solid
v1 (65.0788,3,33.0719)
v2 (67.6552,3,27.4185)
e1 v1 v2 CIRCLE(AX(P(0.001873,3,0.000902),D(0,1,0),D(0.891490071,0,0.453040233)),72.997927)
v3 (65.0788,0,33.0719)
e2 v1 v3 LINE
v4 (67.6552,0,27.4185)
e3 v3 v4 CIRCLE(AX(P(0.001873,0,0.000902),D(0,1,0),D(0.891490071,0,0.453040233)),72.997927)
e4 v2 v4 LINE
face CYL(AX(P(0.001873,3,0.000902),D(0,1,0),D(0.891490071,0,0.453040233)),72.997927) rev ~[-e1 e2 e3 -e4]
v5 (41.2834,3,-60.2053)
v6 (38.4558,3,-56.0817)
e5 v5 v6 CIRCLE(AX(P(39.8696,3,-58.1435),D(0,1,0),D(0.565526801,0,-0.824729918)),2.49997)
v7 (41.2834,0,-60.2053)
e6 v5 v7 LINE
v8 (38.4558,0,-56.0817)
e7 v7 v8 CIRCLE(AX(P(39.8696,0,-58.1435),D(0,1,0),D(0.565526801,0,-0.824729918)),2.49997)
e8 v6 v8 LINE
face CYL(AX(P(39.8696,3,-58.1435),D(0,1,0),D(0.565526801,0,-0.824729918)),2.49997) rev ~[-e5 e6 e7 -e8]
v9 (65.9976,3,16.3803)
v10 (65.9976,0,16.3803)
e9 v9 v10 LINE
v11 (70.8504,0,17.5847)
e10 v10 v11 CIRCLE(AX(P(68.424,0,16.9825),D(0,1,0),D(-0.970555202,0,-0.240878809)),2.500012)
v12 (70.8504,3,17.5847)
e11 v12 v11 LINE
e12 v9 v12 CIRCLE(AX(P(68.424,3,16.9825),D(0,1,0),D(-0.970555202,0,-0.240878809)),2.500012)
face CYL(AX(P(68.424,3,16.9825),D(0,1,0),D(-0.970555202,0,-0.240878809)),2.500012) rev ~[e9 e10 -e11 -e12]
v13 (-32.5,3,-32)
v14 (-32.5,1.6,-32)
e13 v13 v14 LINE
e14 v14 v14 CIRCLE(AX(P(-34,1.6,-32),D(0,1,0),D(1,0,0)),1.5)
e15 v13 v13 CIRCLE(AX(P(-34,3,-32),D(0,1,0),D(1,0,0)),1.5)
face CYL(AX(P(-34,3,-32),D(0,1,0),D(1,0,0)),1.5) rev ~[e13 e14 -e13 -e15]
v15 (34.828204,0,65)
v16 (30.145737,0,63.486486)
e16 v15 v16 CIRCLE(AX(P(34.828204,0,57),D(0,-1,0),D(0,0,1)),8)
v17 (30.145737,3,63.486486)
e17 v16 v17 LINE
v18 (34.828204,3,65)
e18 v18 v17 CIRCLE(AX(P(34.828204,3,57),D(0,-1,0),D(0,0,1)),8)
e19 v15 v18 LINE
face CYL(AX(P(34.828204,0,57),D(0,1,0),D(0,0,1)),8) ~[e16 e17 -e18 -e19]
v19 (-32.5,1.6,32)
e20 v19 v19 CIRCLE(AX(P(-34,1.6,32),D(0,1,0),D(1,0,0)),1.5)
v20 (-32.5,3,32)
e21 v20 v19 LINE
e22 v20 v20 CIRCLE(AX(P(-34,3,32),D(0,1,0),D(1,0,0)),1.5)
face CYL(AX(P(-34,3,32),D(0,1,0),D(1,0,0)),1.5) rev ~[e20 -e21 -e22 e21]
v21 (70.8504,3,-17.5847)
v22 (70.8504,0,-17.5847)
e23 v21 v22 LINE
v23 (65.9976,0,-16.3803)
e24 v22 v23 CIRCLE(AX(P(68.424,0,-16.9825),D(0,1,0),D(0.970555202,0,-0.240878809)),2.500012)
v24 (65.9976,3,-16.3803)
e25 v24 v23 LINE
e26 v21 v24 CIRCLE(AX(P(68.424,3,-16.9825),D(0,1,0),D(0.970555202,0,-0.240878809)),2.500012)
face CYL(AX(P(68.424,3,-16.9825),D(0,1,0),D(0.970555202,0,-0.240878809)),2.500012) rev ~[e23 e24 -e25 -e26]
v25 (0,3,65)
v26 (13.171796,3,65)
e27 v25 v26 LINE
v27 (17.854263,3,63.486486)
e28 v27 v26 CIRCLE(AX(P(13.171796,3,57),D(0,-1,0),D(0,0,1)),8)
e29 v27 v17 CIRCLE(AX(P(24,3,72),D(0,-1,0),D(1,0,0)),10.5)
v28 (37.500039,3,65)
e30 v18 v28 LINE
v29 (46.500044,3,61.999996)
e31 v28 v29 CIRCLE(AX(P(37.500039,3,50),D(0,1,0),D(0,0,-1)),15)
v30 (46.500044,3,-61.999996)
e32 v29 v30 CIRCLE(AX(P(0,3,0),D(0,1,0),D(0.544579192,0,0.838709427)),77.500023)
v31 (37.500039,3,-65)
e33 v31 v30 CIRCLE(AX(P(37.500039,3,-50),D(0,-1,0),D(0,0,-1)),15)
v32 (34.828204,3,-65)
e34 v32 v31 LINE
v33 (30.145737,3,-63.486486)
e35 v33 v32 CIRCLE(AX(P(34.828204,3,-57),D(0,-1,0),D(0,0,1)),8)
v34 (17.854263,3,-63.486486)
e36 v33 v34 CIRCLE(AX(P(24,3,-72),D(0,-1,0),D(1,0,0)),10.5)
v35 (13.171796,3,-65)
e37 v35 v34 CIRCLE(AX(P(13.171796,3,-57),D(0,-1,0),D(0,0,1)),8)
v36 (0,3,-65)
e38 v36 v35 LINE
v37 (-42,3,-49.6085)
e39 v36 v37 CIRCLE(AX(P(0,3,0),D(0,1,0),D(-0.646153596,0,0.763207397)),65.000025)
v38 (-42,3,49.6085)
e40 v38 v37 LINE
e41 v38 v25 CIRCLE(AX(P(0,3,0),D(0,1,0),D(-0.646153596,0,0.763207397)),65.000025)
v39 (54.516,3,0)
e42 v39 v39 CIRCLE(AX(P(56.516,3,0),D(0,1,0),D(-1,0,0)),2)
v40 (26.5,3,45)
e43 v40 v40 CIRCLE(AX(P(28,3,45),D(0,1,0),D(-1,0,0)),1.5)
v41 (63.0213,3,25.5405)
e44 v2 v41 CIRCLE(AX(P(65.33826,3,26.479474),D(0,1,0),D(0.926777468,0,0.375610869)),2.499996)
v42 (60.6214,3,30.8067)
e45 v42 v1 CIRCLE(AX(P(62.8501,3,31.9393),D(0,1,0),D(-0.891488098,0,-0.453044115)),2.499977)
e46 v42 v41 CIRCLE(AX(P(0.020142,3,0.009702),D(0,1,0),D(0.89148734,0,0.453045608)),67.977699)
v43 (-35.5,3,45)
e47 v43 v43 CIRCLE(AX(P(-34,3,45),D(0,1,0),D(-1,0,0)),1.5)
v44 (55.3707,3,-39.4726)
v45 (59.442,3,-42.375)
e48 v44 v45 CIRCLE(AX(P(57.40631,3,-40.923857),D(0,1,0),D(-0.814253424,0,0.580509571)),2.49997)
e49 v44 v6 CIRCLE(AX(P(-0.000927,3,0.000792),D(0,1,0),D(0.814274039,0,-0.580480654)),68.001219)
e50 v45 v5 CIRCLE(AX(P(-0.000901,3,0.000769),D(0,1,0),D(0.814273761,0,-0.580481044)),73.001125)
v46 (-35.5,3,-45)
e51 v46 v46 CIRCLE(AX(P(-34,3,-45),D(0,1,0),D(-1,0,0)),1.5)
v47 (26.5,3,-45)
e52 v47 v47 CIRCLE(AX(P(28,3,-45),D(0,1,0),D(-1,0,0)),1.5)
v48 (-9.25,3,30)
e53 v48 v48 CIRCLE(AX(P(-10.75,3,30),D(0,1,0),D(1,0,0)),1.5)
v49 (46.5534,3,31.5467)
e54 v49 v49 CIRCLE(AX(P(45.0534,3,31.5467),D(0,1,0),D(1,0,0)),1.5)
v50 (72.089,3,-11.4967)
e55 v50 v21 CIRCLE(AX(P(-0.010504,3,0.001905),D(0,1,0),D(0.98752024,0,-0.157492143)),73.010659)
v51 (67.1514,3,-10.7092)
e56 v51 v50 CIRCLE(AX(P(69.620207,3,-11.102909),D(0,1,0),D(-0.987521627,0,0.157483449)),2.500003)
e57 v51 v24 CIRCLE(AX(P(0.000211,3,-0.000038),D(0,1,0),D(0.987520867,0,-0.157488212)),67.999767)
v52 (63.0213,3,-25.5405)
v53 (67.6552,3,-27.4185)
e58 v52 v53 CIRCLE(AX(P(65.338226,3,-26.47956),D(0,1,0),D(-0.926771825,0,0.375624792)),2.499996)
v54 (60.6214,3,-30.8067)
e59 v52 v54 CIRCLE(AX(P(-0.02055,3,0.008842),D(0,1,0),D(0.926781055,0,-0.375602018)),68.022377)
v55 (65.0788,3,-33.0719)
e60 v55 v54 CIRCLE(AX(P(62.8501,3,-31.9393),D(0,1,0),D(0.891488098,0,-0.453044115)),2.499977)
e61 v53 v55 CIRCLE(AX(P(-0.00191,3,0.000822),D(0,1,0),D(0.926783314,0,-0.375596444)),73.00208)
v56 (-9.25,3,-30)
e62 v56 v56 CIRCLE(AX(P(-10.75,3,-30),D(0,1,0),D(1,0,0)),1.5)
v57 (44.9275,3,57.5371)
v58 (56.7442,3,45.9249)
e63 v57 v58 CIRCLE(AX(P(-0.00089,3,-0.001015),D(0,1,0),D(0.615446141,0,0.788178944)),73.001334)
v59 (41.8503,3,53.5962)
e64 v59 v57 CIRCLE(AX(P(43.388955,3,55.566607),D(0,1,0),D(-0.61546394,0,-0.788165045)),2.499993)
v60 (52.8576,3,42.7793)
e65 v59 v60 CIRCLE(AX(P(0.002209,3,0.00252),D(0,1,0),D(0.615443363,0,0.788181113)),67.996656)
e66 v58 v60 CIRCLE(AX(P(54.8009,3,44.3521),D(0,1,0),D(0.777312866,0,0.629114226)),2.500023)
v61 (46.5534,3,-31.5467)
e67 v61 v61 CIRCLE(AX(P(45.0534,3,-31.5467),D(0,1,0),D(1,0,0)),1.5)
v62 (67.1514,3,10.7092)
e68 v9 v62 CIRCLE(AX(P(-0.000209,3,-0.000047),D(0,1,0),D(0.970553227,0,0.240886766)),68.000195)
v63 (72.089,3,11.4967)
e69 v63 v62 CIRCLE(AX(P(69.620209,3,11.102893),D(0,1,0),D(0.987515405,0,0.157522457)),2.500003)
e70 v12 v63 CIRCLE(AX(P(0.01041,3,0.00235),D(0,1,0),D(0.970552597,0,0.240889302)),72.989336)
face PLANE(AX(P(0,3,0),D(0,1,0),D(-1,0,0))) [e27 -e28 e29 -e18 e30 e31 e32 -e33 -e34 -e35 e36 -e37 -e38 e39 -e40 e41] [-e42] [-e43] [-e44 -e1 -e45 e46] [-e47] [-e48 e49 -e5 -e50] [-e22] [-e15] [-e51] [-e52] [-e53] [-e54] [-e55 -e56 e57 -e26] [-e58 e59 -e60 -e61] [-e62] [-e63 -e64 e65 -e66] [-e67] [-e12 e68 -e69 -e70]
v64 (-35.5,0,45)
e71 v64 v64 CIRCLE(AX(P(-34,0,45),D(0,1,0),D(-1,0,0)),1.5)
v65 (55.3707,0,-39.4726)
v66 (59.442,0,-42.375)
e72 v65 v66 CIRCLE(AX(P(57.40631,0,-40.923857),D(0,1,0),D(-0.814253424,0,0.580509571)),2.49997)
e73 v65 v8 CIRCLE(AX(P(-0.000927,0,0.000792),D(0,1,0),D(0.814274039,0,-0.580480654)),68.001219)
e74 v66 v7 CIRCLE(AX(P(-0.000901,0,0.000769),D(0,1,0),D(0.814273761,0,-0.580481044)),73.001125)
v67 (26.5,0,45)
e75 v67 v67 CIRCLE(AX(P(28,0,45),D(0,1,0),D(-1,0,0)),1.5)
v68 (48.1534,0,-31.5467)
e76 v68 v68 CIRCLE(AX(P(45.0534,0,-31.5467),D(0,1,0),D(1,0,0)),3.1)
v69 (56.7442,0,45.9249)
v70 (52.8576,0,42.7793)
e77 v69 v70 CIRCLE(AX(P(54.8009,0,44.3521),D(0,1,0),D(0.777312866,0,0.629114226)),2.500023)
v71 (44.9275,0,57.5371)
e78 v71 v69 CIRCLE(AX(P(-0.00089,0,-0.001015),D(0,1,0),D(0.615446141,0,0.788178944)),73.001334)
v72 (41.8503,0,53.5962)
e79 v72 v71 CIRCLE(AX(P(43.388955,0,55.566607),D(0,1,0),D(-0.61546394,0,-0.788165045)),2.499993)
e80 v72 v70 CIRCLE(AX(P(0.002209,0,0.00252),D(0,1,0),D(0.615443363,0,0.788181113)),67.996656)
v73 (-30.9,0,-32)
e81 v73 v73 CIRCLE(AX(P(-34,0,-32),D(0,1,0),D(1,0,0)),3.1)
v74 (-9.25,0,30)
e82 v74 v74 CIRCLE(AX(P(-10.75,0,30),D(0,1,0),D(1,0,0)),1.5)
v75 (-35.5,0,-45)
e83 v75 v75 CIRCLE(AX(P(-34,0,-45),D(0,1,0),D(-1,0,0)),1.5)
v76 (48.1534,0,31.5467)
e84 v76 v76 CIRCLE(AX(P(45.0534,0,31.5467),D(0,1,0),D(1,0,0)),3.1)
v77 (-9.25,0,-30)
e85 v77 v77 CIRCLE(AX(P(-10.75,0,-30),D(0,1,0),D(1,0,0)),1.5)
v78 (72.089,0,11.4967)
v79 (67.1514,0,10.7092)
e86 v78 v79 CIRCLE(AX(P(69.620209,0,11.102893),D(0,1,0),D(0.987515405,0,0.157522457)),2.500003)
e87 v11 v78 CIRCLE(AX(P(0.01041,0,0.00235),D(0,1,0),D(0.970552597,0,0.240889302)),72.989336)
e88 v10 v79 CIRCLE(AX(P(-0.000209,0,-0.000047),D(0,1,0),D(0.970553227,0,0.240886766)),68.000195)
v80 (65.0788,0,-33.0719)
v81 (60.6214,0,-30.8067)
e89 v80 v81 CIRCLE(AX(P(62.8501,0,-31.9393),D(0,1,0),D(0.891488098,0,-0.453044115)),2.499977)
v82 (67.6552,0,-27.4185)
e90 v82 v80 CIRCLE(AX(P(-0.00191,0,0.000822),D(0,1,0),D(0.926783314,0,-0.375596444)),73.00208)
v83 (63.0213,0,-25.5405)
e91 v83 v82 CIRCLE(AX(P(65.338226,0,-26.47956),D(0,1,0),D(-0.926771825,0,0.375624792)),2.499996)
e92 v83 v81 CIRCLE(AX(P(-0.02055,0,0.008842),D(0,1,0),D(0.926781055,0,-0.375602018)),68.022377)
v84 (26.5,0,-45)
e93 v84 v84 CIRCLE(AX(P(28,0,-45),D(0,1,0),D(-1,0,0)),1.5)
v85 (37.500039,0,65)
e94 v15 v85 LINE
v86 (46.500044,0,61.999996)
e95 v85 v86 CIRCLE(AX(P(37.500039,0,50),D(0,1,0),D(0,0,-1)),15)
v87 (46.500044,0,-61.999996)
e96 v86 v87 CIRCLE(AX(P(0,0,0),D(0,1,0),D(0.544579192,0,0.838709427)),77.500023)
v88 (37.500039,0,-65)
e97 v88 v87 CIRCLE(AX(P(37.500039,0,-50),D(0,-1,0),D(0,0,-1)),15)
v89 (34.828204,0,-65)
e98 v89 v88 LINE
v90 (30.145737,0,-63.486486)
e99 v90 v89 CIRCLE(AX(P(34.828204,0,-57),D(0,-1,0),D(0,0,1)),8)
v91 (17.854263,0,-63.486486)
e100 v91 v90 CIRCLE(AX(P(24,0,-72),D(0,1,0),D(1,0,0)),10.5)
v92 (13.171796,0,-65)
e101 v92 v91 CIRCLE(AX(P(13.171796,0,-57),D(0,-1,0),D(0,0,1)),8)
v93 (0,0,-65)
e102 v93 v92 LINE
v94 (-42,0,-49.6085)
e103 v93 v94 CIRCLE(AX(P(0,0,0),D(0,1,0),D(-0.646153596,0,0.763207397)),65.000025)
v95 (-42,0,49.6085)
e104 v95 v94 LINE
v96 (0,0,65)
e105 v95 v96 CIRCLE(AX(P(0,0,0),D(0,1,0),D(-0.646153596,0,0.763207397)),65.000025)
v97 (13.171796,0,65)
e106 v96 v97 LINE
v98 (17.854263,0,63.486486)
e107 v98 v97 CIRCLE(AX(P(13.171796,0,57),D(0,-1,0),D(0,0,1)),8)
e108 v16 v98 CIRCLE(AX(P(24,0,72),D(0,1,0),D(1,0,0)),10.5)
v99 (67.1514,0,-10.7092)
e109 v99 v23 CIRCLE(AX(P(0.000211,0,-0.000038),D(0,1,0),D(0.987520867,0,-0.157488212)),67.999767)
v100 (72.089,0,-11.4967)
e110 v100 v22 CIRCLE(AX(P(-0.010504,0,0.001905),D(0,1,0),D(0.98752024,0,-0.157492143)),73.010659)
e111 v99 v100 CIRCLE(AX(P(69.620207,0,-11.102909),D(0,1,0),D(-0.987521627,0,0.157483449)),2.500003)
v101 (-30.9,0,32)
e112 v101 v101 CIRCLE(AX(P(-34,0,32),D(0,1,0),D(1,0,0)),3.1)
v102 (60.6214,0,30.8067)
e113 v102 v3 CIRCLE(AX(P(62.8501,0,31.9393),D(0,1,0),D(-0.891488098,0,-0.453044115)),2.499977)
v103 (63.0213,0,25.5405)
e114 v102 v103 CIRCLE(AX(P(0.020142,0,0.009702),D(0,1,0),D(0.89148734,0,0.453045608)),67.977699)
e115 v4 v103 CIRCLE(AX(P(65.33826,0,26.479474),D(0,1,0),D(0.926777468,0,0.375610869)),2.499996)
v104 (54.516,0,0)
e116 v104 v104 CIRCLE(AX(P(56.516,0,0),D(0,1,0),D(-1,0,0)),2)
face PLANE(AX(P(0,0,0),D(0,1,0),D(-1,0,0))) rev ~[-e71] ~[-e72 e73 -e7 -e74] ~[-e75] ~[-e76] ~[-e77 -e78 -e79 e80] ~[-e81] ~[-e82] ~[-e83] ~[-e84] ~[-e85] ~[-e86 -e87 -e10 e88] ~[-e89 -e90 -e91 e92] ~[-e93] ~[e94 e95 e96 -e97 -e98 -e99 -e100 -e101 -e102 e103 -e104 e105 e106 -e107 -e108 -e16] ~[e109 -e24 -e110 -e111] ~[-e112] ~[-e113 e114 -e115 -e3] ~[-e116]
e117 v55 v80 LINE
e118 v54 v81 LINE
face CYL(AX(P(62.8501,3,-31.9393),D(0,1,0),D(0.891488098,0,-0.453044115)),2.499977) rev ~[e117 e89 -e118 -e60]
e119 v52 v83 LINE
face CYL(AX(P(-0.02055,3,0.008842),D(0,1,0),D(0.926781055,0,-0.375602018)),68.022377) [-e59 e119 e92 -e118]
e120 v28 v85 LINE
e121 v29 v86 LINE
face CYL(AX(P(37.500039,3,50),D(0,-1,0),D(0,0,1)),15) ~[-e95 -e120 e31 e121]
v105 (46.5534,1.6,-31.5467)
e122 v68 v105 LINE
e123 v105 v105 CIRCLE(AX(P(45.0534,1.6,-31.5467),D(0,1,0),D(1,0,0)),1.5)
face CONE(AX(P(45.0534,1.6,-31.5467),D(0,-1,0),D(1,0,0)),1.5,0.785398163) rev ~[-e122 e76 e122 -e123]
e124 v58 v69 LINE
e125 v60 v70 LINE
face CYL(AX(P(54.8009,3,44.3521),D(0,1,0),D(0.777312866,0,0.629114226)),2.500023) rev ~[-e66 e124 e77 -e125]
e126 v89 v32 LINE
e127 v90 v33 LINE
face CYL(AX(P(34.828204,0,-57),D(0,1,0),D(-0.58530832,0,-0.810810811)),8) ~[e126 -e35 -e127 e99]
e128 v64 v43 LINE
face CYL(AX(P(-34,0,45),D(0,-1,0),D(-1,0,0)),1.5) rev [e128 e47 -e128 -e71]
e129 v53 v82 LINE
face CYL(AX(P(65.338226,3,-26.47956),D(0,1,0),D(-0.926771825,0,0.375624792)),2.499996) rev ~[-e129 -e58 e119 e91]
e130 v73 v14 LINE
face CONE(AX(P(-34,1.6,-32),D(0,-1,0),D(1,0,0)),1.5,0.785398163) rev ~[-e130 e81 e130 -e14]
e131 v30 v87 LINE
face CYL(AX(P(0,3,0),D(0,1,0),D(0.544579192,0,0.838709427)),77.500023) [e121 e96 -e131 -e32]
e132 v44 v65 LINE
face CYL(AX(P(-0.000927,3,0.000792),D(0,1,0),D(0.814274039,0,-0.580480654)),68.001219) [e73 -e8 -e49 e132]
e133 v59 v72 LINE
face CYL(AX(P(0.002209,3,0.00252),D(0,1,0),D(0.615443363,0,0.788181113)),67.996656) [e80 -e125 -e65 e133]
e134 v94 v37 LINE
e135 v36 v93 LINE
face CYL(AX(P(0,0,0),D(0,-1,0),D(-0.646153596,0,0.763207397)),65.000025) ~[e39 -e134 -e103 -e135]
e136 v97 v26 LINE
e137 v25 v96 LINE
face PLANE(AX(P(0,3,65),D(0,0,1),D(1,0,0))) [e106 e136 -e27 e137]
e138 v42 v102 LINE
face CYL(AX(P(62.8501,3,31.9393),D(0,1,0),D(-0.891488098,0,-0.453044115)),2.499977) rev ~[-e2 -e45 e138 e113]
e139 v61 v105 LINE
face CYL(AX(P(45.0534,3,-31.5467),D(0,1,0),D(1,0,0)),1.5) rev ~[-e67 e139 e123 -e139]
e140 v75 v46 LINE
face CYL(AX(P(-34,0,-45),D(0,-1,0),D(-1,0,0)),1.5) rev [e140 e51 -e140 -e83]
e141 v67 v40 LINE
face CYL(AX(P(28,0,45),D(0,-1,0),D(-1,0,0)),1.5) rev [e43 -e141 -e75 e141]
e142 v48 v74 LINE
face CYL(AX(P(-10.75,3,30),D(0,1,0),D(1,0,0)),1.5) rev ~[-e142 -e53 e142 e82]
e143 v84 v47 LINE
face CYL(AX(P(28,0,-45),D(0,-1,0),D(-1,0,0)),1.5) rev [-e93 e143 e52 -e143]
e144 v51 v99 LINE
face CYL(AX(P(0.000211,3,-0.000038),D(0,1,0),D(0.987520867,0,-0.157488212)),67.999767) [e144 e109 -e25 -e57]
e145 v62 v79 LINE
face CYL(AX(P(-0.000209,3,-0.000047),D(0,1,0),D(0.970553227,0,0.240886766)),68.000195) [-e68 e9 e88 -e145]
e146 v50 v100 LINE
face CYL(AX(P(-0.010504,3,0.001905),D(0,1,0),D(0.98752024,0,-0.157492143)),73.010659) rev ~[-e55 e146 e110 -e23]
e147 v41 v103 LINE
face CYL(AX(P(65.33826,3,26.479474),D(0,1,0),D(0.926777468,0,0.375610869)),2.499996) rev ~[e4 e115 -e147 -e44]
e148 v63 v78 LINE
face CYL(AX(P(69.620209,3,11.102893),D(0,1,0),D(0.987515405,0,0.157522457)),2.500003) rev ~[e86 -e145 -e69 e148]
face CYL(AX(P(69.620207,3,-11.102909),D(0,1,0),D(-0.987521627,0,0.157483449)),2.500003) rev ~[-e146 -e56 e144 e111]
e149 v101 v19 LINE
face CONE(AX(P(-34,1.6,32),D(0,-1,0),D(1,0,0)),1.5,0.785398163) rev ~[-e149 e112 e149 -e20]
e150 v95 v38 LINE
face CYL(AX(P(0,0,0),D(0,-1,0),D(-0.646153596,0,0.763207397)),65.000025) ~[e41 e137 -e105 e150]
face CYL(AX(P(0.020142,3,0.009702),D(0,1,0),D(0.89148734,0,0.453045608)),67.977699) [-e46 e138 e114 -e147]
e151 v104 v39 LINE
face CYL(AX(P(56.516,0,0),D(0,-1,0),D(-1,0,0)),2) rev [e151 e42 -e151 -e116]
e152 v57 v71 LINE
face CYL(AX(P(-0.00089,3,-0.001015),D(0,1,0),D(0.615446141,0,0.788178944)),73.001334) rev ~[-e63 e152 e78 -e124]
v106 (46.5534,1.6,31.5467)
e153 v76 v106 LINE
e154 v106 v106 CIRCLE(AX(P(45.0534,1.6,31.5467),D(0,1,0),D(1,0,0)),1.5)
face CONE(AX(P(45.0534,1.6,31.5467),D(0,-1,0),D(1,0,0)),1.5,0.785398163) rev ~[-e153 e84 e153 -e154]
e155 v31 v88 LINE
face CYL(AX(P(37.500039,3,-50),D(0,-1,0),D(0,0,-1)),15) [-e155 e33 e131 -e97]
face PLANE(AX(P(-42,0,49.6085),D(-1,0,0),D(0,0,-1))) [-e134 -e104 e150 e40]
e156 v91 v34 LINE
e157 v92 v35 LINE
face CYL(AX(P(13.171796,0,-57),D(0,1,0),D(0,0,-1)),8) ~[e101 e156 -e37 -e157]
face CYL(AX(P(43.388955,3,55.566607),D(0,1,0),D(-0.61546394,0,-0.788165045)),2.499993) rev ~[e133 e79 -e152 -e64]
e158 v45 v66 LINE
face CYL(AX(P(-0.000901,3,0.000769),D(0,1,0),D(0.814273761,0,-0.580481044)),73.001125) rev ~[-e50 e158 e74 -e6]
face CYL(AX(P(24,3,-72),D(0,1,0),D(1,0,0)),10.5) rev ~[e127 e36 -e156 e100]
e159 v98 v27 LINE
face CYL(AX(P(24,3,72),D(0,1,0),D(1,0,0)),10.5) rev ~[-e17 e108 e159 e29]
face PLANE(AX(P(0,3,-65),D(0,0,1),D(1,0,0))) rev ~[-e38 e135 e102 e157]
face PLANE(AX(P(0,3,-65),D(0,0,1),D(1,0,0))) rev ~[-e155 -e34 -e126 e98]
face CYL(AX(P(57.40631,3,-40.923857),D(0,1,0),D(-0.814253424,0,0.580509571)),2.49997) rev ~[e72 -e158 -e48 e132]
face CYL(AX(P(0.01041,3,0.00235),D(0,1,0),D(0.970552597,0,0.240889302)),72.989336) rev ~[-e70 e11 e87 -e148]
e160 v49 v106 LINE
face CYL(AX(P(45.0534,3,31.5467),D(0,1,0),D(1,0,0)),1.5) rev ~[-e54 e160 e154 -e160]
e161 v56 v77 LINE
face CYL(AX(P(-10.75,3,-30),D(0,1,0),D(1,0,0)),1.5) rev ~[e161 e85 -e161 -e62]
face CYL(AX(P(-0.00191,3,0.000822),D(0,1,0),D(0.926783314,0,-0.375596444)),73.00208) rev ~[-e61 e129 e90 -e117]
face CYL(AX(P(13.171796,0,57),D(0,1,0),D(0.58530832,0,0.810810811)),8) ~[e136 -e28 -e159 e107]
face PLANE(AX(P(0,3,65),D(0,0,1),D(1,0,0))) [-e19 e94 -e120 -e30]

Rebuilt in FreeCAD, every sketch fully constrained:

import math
import FreeCAD as App
import Part
import Sketcher
Q = App.Units.Quantity


def edges_at(feature, points):
    """Names of the edges that pass closest to the given points."""
    edges = feature.Shape.Edges
    near = lambda p: min(range(len(edges)), key=lambda i: edges[i].distToShape(Part.Vertex(*p))[0])
    return sorted({f"Edge{near(p) + 1}" for p in points})

doc = App.newDocument("Part")
params = doc.addObject("Spreadsheet::Sheet", "Params")
for row, (alias, value) in enumerate([
    ("sketch1_diameter", "3 mm"),
    ("sketch1_diameter2", "4 mm"),
    ("sketch1_radius", "65 mm"),
    ("pad1_length", "3 mm"),
    ("sketch2_diameter", "3 mm"),
    ("pocket1_length", "10 mm"),
    ("chamfer_size", "1.6 mm"),
    ("sketch3_diameter", "3 mm"),
    ("pocket2_length", "10 mm"),
    ("sketch4_radius", "65 mm"),
    ("sketch4_radius2", "77.5 mm"),
    ("sketch4_radius3", "2.5 mm"),
    ("sketch4_radius4", "68 mm"),
    ("pad2_length", "3 mm"),
    ("fillet_radius", "15 mm"),
    ("sketch5_diameter", "21 mm"),
    ("pocket3_length", "3 mm"),
    ("fillet2_radius", "8 mm"),
], start=1):
    params.set(f"A{row}", alias)
    params.set(f"B{row}", "=" + value)
    params.setAlias(f"B{row}", alias)

body = doc.addObject("PartDesign::Body", "Body")

# Sketch on XZ plane
sketch1 = body.newObject("Sketcher::SketchObject", "Sketch")
sketch1.AttachmentSupport = (doc.getObject("XZ_Plane"), [""])
sketch1.MapMode = "FlatFace"
sketch1.addGeometry(Part.LineSegment(App.Vector(-42, -49.6, 0), App.Vector(-42, 49.6, 0)), False)
sketch1.addGeometry(Part.ArcOfCircle(Part.Circle(App.Vector(0, 0, 0), App.Vector(0, 0, 1), 65), math.radians(-130), math.radians(130)), False)
sketch1.addGeometry(Part.Circle(App.Vector(28, -45, 0), App.Vector(0, 0, 1), 1.5), False)
sketch1.addGeometry(Part.Circle(App.Vector(-34, -45, 0), App.Vector(0, 0, 1), 1.5), False)
sketch1.addGeometry(Part.Circle(App.Vector(56.5, 0, 0), App.Vector(0, 0, 1), 2), False)
sketch1.addGeometry(Part.Circle(App.Vector(28, 45, 0), App.Vector(0, 0, 1), 1.5), False)
sketch1.addGeometry(Part.Circle(App.Vector(-34, 45, 0), App.Vector(0, 0, 1), 1.5), False)
sketch1.addConstraint(Sketcher.Constraint("Coincident", 0, 1, 1, 1))
sketch1.addConstraint(Sketcher.Constraint("Coincident", 1, 2, 0, 2))
sketch1.addConstraint(Sketcher.Constraint("Vertical", 0))
sketch1.addConstraint(Sketcher.Constraint("Coincident", 1, 3, -1, 1))
sketch1.addConstraint(Sketcher.Constraint("Equal", 2, 3))
sketch1.addConstraint(Sketcher.Constraint("Equal", 3, 5))
sketch1.addConstraint(Sketcher.Constraint("Equal", 5, 6))
sketch1.addConstraint(Sketcher.Constraint("Symmetric", 2, 3, 5, 3, -1))
sketch1.addConstraint(Sketcher.Constraint("Symmetric", 3, 3, 6, 3, -1))
sketch1.addConstraint(Sketcher.Constraint("PointOnObject", 4, 3, -1))
sketch1.addConstraint(Sketcher.Constraint("Horizontal", 2, 3, 3, 3))
sketch1.addConstraint(Sketcher.Constraint("Diameter", 2, Q("3 mm")))
sketch1.addConstraint(Sketcher.Constraint("Diameter", 4, Q("4 mm")))
sketch1.addConstraint(Sketcher.Constraint("Radius", 1, Q("65 mm")))
sketch1.addConstraint(Sketcher.Constraint("DistanceY", 2, 3, -1, 1, Q("45 mm")))
sketch1.addConstraint(Sketcher.Constraint("DistanceX", 0, 1, -1, 1, Q("42 mm")))
sketch1.addConstraint(Sketcher.Constraint("DistanceX", 0, 1, 3, 3, Q("8 mm")))
sketch1.addConstraint(Sketcher.Constraint("DistanceX", 0, 1, 2, 3, Q("70 mm")))
sketch1.addConstraint(Sketcher.Constraint("DistanceX", -1, 1, 4, 3, Q("56.516 mm")))
sketch1.setExpression("Constraints[11]", "Params.sketch1_diameter")
sketch1.setExpression("Constraints[12]", "Params.sketch1_diameter2")
sketch1.setExpression("Constraints[13]", "Params.sketch1_radius")
pad1 = body.newObject("PartDesign::Pad", "Pad")
pad1.Profile = sketch1
pad1.setExpression("Length", "Params.pad1_length")
pad1.Reversed = True

# Sketch on XZ plane
sketch2 = body.newObject("Sketcher::SketchObject", "Sketch001")
sketch2.AttachmentSupport = (doc.getObject("XZ_Plane"), [""])
sketch2.MapMode = "FlatFace"
sketch2.AttachmentOffset = App.Placement(App.Vector(0, 0, -3), App.Rotation())
sketch2.addGeometry(Part.Circle(App.Vector(45.1, 31.5, 0), App.Vector(0, 0, 1), 1.5), False)
sketch2.addGeometry(Part.Circle(App.Vector(45.1, -31.5, 0), App.Vector(0, 0, 1), 1.5), False)
sketch2.addGeometry(Part.Circle(App.Vector(-34, 32, 0), App.Vector(0, 0, 1), 1.5), False)
sketch2.addGeometry(Part.Circle(App.Vector(-34, -32, 0), App.Vector(0, 0, 1), 1.5), False)
sketch2.addConstraint(Sketcher.Constraint("Equal", 0, 1))
sketch2.addConstraint(Sketcher.Constraint("Equal", 1, 2))
sketch2.addConstraint(Sketcher.Constraint("Equal", 2, 3))
sketch2.addConstraint(Sketcher.Constraint("Symmetric", 0, 3, 1, 3, -1))
sketch2.addConstraint(Sketcher.Constraint("Symmetric", 2, 3, 3, 3, -1))
sketch2.addConstraint(Sketcher.Constraint("Diameter", 0, Q("3 mm")))
sketch2.addConstraint(Sketcher.Constraint("DistanceY", -1, 1, 2, 3, Q("32 mm")))
sketch2.addConstraint(Sketcher.Constraint("DistanceX", 2, 3, -1, 1, Q("34 mm")))
sketch2.addConstraint(Sketcher.Constraint("DistanceX", -1, 1, 0, 3, Q("45.0534 mm")))
sketch2.addConstraint(Sketcher.Constraint("DistanceY", -1, 1, 0, 3, Q("31.5467 mm")))
sketch2.setExpression("Constraints[5]", "Params.sketch2_diameter")
pocket1 = body.newObject("PartDesign::Pocket", "Pocket")
pocket1.Profile = sketch2
pocket1.setExpression("Length", "Params.pocket1_length")
pocket1.Reversed = True
doc.recompute()

chamfer = body.newObject("PartDesign::Chamfer", "Chamfer")
chamfer.Base = (pocket1, edges_at(pocket1, [
    (43.553, 0, 31.547),
    (43.553, 0, -31.547),
    (-35.5, 0, -32),
    (-35.5, 0, 32),
]))
chamfer.setExpression("Size", "Params.chamfer_size")

# Sketch on XZ plane
sketch3 = body.newObject("Sketcher::SketchObject", "Sketch002")
sketch3.AttachmentSupport = (doc.getObject("XZ_Plane"), [""])
sketch3.MapMode = "FlatFace"
sketch3.AttachmentOffset = App.Placement(App.Vector(0, 0, -3), App.Rotation())
sketch3.addGeometry(Part.Circle(App.Vector(-10.8, 30, 0), App.Vector(0, 0, 1), 1.5), False)
sketch3.addGeometry(Part.Circle(App.Vector(-10.8, -30, 0), App.Vector(0, 0, 1), 1.5), False)
sketch3.addConstraint(Sketcher.Constraint("Equal", 0, 1))
sketch3.addConstraint(Sketcher.Constraint("Symmetric", 0, 3, 1, 3, -1))
sketch3.addConstraint(Sketcher.Constraint("Diameter", 0, Q("3 mm")))
sketch3.addConstraint(Sketcher.Constraint("DistanceY", -1, 1, 0, 3, Q("30 mm")))
sketch3.addConstraint(Sketcher.Constraint("DistanceX", 0, 3, -1, 1, Q("10.75 mm")))
sketch3.setExpression("Constraints[2]", "Params.sketch3_diameter")
pocket2 = body.newObject("PartDesign::Pocket", "Pocket001")
pocket2.Profile = sketch3
pocket2.setExpression("Length", "Params.pocket2_length")
pocket2.Reversed = True

# Sketch on XZ plane
sketch4 = body.newObject("Sketcher::SketchObject", "Sketch003")
sketch4.AttachmentSupport = (doc.getObject("XZ_Plane"), [""])
sketch4.MapMode = "FlatFace"
sketch4.AttachmentOffset = App.Placement(App.Vector(0, 0, -3), App.Rotation())
sketch4.addGeometry(Part.LineSegment(App.Vector(0, 65, 0), App.Vector(42.2049, 65, 0)), False)
sketch4.addGeometry(Part.ArcOfCircle(Part.Circle(App.Vector(0, 0, 0), App.Vector(0, 0, 1), 77.500023), math.radians(-57.004088), math.radians(57.004088)), False)
sketch4.addGeometry(Part.LineSegment(App.Vector(42.2049, -65, 0), App.Vector(0, -65, 0)), False)
sketch4.addGeometry(Part.ArcOfCircle(Part.Circle(App.Vector(0, 0, 0), App.Vector(0, 0, 1), 65.000025), math.radians(-90), math.radians(90)), False)
sketch4.addGeometry(Part.ArcOfCircle(Part.Circle(App.Vector(-0.00089, -0.001015, 0), App.Vector(0, 0, 1), 73.001334), math.radians(38.984536), math.radians(52.015655)), False)
sketch4.addGeometry(Part.ArcOfCircle(Part.Circle(App.Vector(43.3889, 55.5666, 0), App.Vector(0, 0, 1), 2.499953), math.radians(52.016675), math.radians(232.015264)), False)
sketch4.addGeometry(Part.ArcOfCircle(Part.Circle(App.Vector(0.002209, 0.00252, 0), App.Vector(0, 0, 1), 67.996656), math.radians(38.983844), math.radians(52.015857)), False)
sketch4.addGeometry(Part.ArcOfCircle(Part.Circle(App.Vector(54.8009, 44.3521, 0), App.Vector(0, 0, 1), 2.500023), math.radians(-141.015198), math.radians(38.984802)), False)
sketch4.addGeometry(Part.ArcOfCircle(Part.Circle(App.Vector(0.001873, 0.000902, 0), App.Vector(0, 0, 1), 72.997927), math.radians(22.061043), math.radians(26.93891)), False)
sketch4.addGeometry(Part.ArcOfCircle(Part.Circle(App.Vector(62.8501, 31.9393, 0), App.Vector(0, 0, 1), 2.499977), math.radians(26.93916), math.radians(206.93916)), False)
sketch4.addGeometry(Part.ArcOfCircle(Part.Circle(App.Vector(0.020142, 0.009702, 0), App.Vector(0, 0, 1), 67.977699), math.radians(22.059923), math.radians(26.939256)), False)
sketch4.addGeometry(Part.ArcOfCircle(Part.Circle(App.Vector(65.3382, 26.4795, 0), App.Vector(0, 0, 1), 2.500042), math.radians(-157.938128), math.radians(22.061011)), False)
sketch4.addGeometry(Part.ArcOfCircle(Part.Circle(App.Vector(0.01041, 0.00235, 0), App.Vector(0, 0, 1), 72.989336), math.radians(9.060648), math.radians(13.939034)), False)
sketch4.addGeometry(Part.ArcOfCircle(Part.Circle(App.Vector(68.424, 16.9825, 0), App.Vector(0, 0, 1), 2.500012), math.radians(13.938414), math.radians(193.938414)), False)
sketch4.addGeometry(Part.ArcOfCircle(Part.Circle(App.Vector(0, 0, 0), App.Vector(0, 0, 1), 68.000051), math.radians(9.061137), math.radians(13.938888)), False)
sketch4.addGeometry(Part.ArcOfCircle(Part.Circle(App.Vector(69.6202, 11.1029, 0), App.Vector(0, 0, 1), 2.50001), math.radians(-170.939324), math.radians(9.062939)), False)
sketch4.addGeometry(Part.ArcOfCircle(Part.Circle(App.Vector(-0.010504, 0.001905, 0), App.Vector(0, 0, 1), 73.010659), math.radians(-13.938321), math.radians(-9.061361)), False)
sketch4.addGeometry(Part.ArcOfCircle(Part.Circle(App.Vector(69.6202, -11.1029, 0), App.Vector(0, 0, 1), 2.499995), math.radians(-9.062939), math.radians(170.939324)), False)
sketch4.addGeometry(Part.ArcOfCircle(Part.Circle(App.Vector(0, 0, 0), App.Vector(0, 0, 1), 67.999981), math.radians(-13.938888), math.radians(-9.061137)), False)
sketch4.addGeometry(Part.ArcOfCircle(Part.Circle(App.Vector(68.424, -16.9825, 0), App.Vector(0, 0, 1), 2.500012), math.radians(166.061586), math.radians(346.061586)), False)
sketch4.addGeometry(Part.ArcOfCircle(Part.Circle(App.Vector(-0.00191, 0.000822, 0), App.Vector(0, 0, 1), 73.00208), math.radians(-26.938771), math.radians(-22.061182)), False)
sketch4.addGeometry(Part.ArcOfCircle(Part.Circle(App.Vector(65.3382, -26.4795, 0), App.Vector(0, 0, 1), 2.499949), math.radians(-22.061011), math.radians(157.938128)), False)
sketch4.addGeometry(Part.ArcOfCircle(Part.Circle(App.Vector(-0.02055, 0.008842, 0), App.Vector(0, 0, 1), 68.022377), math.radians(-26.937652), math.radians(-22.061526)), False)
sketch4.addGeometry(Part.ArcOfCircle(Part.Circle(App.Vector(62.8501, -31.9393, 0), App.Vector(0, 0, 1), 2.499977), math.radians(153.06084), math.radians(333.06084)), False)
sketch4.addGeometry(Part.ArcOfCircle(Part.Circle(App.Vector(-0.000901, 0.000769, 0), App.Vector(0, 0, 1), 73.001125), math.radians(-55.560921), math.radians(-35.484384)), False)
sketch4.addGeometry(Part.ArcOfCircle(Part.Circle(App.Vector(57.4063, -40.9238, 0), App.Vector(0, 0, 1), 2.49993), math.radians(-35.484128), math.radians(144.514542)), False)
sketch4.addGeometry(Part.ArcOfCircle(Part.Circle(App.Vector(-0.000927, 0.000792, 0), App.Vector(0, 0, 1), 68.001219), math.radians(-55.560899), math.radians(-35.484356)), False)
sketch4.addGeometry(Part.ArcOfCircle(Part.Circle(App.Vector(39.8696, -58.1435, 0), App.Vector(0, 0, 1), 2.49997), math.radians(124.438881), math.radians(304.438881)), False)
sketch4.addConstraint(Sketcher.Constraint("Coincident", 0, 2, 1, 2))
sketch4.addConstraint(Sketcher.Constraint("Coincident", 1, 1, 2, 1))
sketch4.addConstraint(Sketcher.Constraint("Tangent", 2, 2, 3, 1))
sketch4.addConstraint(Sketcher.Constraint("Tangent", 3, 2, 0, 1))
sketch4.addConstraint(Sketcher.Constraint("Tangent", 4, 2, 5, 1))
sketch4.addConstraint(Sketcher.Constraint("Tangent", 5, 2, 6, 2))
sketch4.addConstraint(Sketcher.Constraint("Tangent", 6, 1, 7, 1))
sketch4.addConstraint(Sketcher.Constraint("Tangent", 7, 2, 4, 1))
sketch4.addConstraint(Sketcher.Constraint("Tangent", 8, 2, 9, 1))
sketch4.addConstraint(Sketcher.Constraint("Tangent", 9, 2, 10, 2))
sketch4.addConstraint(Sketcher.Constraint("Tangent", 10, 1, 11, 1))
sketch4.addConstraint(Sketcher.Constraint("Tangent", 11, 2, 8, 1))
sketch4.addConstraint(Sketcher.Constraint("Tangent", 12, 2, 13, 1))
sketch4.addConstraint(Sketcher.Constraint("Tangent", 13, 2, 14, 2))
sketch4.addConstraint(Sketcher.Constraint("Tangent", 14, 1, 15, 1))
sketch4.addConstraint(Sketcher.Constraint("Tangent", 15, 2, 12, 1))
sketch4.addConstraint(Sketcher.Constraint("Tangent", 16, 2, 17, 1))
sketch4.addConstraint(Sketcher.Constraint("Tangent", 17, 2, 18, 2))
sketch4.addConstraint(Sketcher.Constraint("Tangent", 18, 1, 19, 1))
sketch4.addConstraint(Sketcher.Constraint("Tangent", 19, 2, 16, 1))
sketch4.addConstraint(Sketcher.Constraint("Tangent", 20, 2, 21, 1))
sketch4.addConstraint(Sketcher.Constraint("Tangent", 21, 2, 22, 2))
sketch4.addConstraint(Sketcher.Constraint("Tangent", 22, 1, 23, 1))
sketch4.addConstraint(Sketcher.Constraint("Tangent", 23, 2, 20, 1))
sketch4.addConstraint(Sketcher.Constraint("Tangent", 24, 2, 25, 1))
sketch4.addConstraint(Sketcher.Constraint("Tangent", 25, 2, 26, 2))
sketch4.addConstraint(Sketcher.Constraint("Tangent", 26, 1, 27, 1))
sketch4.addConstraint(Sketcher.Constraint("Tangent", 27, 2, 24, 1))
sketch4.addConstraint(Sketcher.Constraint("Horizontal", 0))
sketch4.addConstraint(Sketcher.Constraint("Horizontal", 2))
sketch4.addConstraint(Sketcher.Constraint("Coincident", 1, 3, -1, 1))
sketch4.addConstraint(Sketcher.Constraint("Coincident", 3, 3, -1, 1))
sketch4.addConstraint(Sketcher.Constraint("Coincident", 14, 3, -1, 1))
sketch4.addConstraint(Sketcher.Constraint("Coincident", 18, 3, -1, 1))
sketch4.addConstraint(Sketcher.Constraint("Coincident", 26, 3, 24, 3))
sketch4.addConstraint(Sketcher.Constraint("Equal", 5, 7))
sketch4.addConstraint(Sketcher.Constraint("Equal", 7, 9))
sketch4.addConstraint(Sketcher.Constraint("Equal", 9, 11))
sketch4.addConstraint(Sketcher.Constraint("Equal", 11, 13))
sketch4.addConstraint(Sketcher.Constraint("Equal", 13, 15))
sketch4.addConstraint(Sketcher.Constraint("Equal", 15, 17))
sketch4.addConstraint(Sketcher.Constraint("Equal", 14, 18))
sketch4.addConstraint(Sketcher.Constraint("Equal", 17, 19))
sketch4.addConstraint(Sketcher.Constraint("Equal", 19, 21))
sketch4.addConstraint(Sketcher.Constraint("Equal", 21, 23))
sketch4.addConstraint(Sketcher.Constraint("Equal", 23, 25))
sketch4.addConstraint(Sketcher.Constraint("Symmetric", 8, 3, 20, 3, -2))
sketch4.addConstraint(Sketcher.Constraint("Symmetric", 11, 3, 21, 3, -1))
sketch4.addConstraint(Sketcher.Constraint("Symmetric", 9, 3, 23, 3, -1))
sketch4.addConstraint(Sketcher.Constraint("Symmetric", 4, 3, 24, 3, -1))
sketch4.addConstraint(Sketcher.Constraint("Horizontal", 6, 3, 12, 3))
sketch4.addConstraint(Sketcher.Constraint("Horizontal", 20, 3, 24, 3))
sketch4.addConstraint(Sketcher.Constraint("Vertical", 15, 3, 17, 3))
sketch4.addConstraint(Sketcher.Constraint("Vertical", 13, 3, 19, 3))
sketch4.addConstraint(Sketcher.Constraint("Radius", 3, Q("65 mm")))
sketch4.addConstraint(Sketcher.Constraint("Radius", 1, Q("77.5 mm")))
sketch4.addConstraint(Sketcher.Constraint("Radius", 5, Q("2.5 mm")))
sketch4.addConstraint(Sketcher.Constraint("Radius", 14, Q("68 mm")))
sketch4.addConstraint(Sketcher.Constraint("Radius", 8, Q("72.998 mm")))
sketch4.addConstraint(Sketcher.Constraint("Radius", 20, Q("73.002 mm")))
sketch4.addConstraint(Sketcher.Constraint("Radius", 4, Q("73.0013 mm")))
sketch4.addConstraint(Sketcher.Constraint("Radius", 6, Q("67.9967 mm")))
sketch4.addConstraint(Sketcher.Constraint("Radius", 10, Q("67.9777 mm")))
sketch4.addConstraint(Sketcher.Constraint("Radius", 16, Q("73.0107 mm")))
sketch4.addConstraint(Sketcher.Constraint("Radius", 22, Q("68.0224 mm")))
sketch4.addConstraint(Sketcher.Constraint("Radius", 24, Q("73.0011 mm")))
sketch4.addConstraint(Sketcher.Constraint("DistanceX", 9, 2, 10, 1, Q("2.4 mm")))
sketch4.addConstraint(Sketcher.Constraint("DistanceX", -1, 1, 9, 3, Q("62.85 mm")))
sketch4.addConstraint(Sketcher.Constraint("DistanceX", 9, 3, 15, 3, Q("6.77 mm")))
sketch4.addConstraint(Sketcher.Constraint("DistanceY", 9, 3, 6, 1, Q("10.84 mm")))
sketch4.addConstraint(Sketcher.Constraint("DistanceX", 4, 2, 6, 1, Q("7.93 mm")))
sketch4.addConstraint(Sketcher.Constraint("DistanceX", 4, 3, -1, 1, Q("0.001 mm")))
sketch4.addConstraint(Sketcher.Constraint("DistanceX", -1, 1, 13, 3, Q("68.424 mm")))
sketch4.addConstraint(Sketcher.Constraint("DistanceX", -1, 1, 24, 2, Q("59.442 mm")))
sketch4.addConstraint(Sketcher.Constraint("DistanceY", 27, 3, 21, 3, Q("31.664 mm")))
sketch4.setExpression("Constraints[54]", "Params.sketch4_radius")
sketch4.setExpression("Constraints[55]", "Params.sketch4_radius2")
sketch4.setExpression("Constraints[56]", "Params.sketch4_radius3")
sketch4.setExpression("Constraints[57]", "Params.sketch4_radius4")
pad2 = body.newObject("PartDesign::Pad", "Pad001")
pad2.Profile = sketch4
pad2.setExpression("Length", "Params.pad2_length")
doc.recompute()

fillet = body.newObject("PartDesign::Fillet", "Fillet")
fillet.Base = (pad2, edges_at(pad2, [(42.205, 1.5, 65), (42.205, 1.5, -65)]))
fillet.setExpression("Radius", "Params.fillet_radius")

# Sketch on XZ plane
sketch5 = body.newObject("Sketcher::SketchObject", "Sketch004")
sketch5.AttachmentSupport = (doc.getObject("XZ_Plane"), [""])
sketch5.MapMode = "FlatFace"
sketch5.AttachmentOffset = App.Placement(App.Vector(0, 0, -3), App.Rotation())
sketch5.addGeometry(Part.Circle(App.Vector(24, -72, 0), App.Vector(0, 0, 1), 10), False)
sketch5.addGeometry(Part.Circle(App.Vector(24, 72, 0), App.Vector(0, 0, 1), 10), False)
sketch5.addConstraint(Sketcher.Constraint("Equal", 0, 1))
sketch5.addConstraint(Sketcher.Constraint("Symmetric", 0, 3, 1, 3, -1))
sketch5.addConstraint(Sketcher.Constraint("Diameter", 0, Q("21 mm")))
sketch5.addConstraint(Sketcher.Constraint("DistanceY", 0, 3, -1, 1, Q("72 mm")))
sketch5.addConstraint(Sketcher.Constraint("DistanceX", -1, 1, 0, 3, Q("24 mm")))
sketch5.setExpression("Constraints[2]", "Params.sketch5_diameter")
pocket3 = body.newObject("PartDesign::Pocket", "Pocket002")
pocket3.Profile = sketch5
pocket3.setExpression("Length", "Params.pocket3_length")
pocket3.Reversed = True
doc.recompute()

fillet2 = body.newObject("PartDesign::Fillet", "Fillet001")
fillet2.Base = (pocket3, edges_at(pocket3, [
    (31.826, 1.5, 65),
    (16.174, 1.5, 65),
    (16.174, 1.5, -65),
    (31.826, 1.5, -65),
]))
fillet2.setExpression("Radius", "Params.fillet2_radius")

doc.recompute()
